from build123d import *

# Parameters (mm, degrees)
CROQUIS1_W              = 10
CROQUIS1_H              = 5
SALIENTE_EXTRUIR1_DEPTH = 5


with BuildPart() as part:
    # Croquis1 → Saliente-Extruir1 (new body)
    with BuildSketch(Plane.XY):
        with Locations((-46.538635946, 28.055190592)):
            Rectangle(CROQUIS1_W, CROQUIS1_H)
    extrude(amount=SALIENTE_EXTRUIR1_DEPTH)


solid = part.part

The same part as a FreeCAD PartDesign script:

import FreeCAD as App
import Part
import Sketcher


def add_polygon(sketch, points):
    """Adds a closed chain of lines whose ends are joined by coincident constraints."""
    first, n = sketch.GeometryCount, len(points)
    for a, b in zip(points, points[1:] + points[:1]):
        sketch.addGeometry(Part.LineSegment(App.Vector(*a, 0), App.Vector(*b, 0)), False)
    for i in range(n):
        sketch.addConstraint(Sketcher.Constraint("Coincident", first + i, 2, first + (i + 1) % n, 1))

doc = App.newDocument("Part")
body = doc.addObject("PartDesign::Body", "Body")

sketch1 = body.newObject("Sketcher::SketchObject", "Sketch")
sketch1.AttachmentSupport = (doc.getObject("XY_Plane"), [""])
sketch1.MapMode = "FlatFace"
add_polygon(sketch1, [(-52, 31), (-52, 26), (-42, 26), (-42, 31)])
sketch1.addConstraint(Sketcher.Constraint("Vertical", 0))
sketch1.addConstraint(Sketcher.Constraint("Horizontal", 1))
sketch1.addConstraint(Sketcher.Constraint("Vertical", 2))
sketch1.addConstraint(Sketcher.Constraint("Horizontal", 3))
sketch1.addConstraint(Sketcher.Constraint("DistanceX", 1, 1, 1, 2, 10.0))
sketch1.addConstraint(Sketcher.Constraint("DistanceY", 0, 2, 0, 1, 5.0))
sketch1.addConstraint(Sketcher.Constraint("DistanceY", -1, 1, 0, 2, 25.555191))
sketch1.addConstraint(Sketcher.Constraint("DistanceX", 0, 2, -1, 1, 51.538636))
pad1 = body.newObject("PartDesign::Pad", "Pad")
pad1.Profile = sketch1
pad1.Length = 5

doc.recompute()
